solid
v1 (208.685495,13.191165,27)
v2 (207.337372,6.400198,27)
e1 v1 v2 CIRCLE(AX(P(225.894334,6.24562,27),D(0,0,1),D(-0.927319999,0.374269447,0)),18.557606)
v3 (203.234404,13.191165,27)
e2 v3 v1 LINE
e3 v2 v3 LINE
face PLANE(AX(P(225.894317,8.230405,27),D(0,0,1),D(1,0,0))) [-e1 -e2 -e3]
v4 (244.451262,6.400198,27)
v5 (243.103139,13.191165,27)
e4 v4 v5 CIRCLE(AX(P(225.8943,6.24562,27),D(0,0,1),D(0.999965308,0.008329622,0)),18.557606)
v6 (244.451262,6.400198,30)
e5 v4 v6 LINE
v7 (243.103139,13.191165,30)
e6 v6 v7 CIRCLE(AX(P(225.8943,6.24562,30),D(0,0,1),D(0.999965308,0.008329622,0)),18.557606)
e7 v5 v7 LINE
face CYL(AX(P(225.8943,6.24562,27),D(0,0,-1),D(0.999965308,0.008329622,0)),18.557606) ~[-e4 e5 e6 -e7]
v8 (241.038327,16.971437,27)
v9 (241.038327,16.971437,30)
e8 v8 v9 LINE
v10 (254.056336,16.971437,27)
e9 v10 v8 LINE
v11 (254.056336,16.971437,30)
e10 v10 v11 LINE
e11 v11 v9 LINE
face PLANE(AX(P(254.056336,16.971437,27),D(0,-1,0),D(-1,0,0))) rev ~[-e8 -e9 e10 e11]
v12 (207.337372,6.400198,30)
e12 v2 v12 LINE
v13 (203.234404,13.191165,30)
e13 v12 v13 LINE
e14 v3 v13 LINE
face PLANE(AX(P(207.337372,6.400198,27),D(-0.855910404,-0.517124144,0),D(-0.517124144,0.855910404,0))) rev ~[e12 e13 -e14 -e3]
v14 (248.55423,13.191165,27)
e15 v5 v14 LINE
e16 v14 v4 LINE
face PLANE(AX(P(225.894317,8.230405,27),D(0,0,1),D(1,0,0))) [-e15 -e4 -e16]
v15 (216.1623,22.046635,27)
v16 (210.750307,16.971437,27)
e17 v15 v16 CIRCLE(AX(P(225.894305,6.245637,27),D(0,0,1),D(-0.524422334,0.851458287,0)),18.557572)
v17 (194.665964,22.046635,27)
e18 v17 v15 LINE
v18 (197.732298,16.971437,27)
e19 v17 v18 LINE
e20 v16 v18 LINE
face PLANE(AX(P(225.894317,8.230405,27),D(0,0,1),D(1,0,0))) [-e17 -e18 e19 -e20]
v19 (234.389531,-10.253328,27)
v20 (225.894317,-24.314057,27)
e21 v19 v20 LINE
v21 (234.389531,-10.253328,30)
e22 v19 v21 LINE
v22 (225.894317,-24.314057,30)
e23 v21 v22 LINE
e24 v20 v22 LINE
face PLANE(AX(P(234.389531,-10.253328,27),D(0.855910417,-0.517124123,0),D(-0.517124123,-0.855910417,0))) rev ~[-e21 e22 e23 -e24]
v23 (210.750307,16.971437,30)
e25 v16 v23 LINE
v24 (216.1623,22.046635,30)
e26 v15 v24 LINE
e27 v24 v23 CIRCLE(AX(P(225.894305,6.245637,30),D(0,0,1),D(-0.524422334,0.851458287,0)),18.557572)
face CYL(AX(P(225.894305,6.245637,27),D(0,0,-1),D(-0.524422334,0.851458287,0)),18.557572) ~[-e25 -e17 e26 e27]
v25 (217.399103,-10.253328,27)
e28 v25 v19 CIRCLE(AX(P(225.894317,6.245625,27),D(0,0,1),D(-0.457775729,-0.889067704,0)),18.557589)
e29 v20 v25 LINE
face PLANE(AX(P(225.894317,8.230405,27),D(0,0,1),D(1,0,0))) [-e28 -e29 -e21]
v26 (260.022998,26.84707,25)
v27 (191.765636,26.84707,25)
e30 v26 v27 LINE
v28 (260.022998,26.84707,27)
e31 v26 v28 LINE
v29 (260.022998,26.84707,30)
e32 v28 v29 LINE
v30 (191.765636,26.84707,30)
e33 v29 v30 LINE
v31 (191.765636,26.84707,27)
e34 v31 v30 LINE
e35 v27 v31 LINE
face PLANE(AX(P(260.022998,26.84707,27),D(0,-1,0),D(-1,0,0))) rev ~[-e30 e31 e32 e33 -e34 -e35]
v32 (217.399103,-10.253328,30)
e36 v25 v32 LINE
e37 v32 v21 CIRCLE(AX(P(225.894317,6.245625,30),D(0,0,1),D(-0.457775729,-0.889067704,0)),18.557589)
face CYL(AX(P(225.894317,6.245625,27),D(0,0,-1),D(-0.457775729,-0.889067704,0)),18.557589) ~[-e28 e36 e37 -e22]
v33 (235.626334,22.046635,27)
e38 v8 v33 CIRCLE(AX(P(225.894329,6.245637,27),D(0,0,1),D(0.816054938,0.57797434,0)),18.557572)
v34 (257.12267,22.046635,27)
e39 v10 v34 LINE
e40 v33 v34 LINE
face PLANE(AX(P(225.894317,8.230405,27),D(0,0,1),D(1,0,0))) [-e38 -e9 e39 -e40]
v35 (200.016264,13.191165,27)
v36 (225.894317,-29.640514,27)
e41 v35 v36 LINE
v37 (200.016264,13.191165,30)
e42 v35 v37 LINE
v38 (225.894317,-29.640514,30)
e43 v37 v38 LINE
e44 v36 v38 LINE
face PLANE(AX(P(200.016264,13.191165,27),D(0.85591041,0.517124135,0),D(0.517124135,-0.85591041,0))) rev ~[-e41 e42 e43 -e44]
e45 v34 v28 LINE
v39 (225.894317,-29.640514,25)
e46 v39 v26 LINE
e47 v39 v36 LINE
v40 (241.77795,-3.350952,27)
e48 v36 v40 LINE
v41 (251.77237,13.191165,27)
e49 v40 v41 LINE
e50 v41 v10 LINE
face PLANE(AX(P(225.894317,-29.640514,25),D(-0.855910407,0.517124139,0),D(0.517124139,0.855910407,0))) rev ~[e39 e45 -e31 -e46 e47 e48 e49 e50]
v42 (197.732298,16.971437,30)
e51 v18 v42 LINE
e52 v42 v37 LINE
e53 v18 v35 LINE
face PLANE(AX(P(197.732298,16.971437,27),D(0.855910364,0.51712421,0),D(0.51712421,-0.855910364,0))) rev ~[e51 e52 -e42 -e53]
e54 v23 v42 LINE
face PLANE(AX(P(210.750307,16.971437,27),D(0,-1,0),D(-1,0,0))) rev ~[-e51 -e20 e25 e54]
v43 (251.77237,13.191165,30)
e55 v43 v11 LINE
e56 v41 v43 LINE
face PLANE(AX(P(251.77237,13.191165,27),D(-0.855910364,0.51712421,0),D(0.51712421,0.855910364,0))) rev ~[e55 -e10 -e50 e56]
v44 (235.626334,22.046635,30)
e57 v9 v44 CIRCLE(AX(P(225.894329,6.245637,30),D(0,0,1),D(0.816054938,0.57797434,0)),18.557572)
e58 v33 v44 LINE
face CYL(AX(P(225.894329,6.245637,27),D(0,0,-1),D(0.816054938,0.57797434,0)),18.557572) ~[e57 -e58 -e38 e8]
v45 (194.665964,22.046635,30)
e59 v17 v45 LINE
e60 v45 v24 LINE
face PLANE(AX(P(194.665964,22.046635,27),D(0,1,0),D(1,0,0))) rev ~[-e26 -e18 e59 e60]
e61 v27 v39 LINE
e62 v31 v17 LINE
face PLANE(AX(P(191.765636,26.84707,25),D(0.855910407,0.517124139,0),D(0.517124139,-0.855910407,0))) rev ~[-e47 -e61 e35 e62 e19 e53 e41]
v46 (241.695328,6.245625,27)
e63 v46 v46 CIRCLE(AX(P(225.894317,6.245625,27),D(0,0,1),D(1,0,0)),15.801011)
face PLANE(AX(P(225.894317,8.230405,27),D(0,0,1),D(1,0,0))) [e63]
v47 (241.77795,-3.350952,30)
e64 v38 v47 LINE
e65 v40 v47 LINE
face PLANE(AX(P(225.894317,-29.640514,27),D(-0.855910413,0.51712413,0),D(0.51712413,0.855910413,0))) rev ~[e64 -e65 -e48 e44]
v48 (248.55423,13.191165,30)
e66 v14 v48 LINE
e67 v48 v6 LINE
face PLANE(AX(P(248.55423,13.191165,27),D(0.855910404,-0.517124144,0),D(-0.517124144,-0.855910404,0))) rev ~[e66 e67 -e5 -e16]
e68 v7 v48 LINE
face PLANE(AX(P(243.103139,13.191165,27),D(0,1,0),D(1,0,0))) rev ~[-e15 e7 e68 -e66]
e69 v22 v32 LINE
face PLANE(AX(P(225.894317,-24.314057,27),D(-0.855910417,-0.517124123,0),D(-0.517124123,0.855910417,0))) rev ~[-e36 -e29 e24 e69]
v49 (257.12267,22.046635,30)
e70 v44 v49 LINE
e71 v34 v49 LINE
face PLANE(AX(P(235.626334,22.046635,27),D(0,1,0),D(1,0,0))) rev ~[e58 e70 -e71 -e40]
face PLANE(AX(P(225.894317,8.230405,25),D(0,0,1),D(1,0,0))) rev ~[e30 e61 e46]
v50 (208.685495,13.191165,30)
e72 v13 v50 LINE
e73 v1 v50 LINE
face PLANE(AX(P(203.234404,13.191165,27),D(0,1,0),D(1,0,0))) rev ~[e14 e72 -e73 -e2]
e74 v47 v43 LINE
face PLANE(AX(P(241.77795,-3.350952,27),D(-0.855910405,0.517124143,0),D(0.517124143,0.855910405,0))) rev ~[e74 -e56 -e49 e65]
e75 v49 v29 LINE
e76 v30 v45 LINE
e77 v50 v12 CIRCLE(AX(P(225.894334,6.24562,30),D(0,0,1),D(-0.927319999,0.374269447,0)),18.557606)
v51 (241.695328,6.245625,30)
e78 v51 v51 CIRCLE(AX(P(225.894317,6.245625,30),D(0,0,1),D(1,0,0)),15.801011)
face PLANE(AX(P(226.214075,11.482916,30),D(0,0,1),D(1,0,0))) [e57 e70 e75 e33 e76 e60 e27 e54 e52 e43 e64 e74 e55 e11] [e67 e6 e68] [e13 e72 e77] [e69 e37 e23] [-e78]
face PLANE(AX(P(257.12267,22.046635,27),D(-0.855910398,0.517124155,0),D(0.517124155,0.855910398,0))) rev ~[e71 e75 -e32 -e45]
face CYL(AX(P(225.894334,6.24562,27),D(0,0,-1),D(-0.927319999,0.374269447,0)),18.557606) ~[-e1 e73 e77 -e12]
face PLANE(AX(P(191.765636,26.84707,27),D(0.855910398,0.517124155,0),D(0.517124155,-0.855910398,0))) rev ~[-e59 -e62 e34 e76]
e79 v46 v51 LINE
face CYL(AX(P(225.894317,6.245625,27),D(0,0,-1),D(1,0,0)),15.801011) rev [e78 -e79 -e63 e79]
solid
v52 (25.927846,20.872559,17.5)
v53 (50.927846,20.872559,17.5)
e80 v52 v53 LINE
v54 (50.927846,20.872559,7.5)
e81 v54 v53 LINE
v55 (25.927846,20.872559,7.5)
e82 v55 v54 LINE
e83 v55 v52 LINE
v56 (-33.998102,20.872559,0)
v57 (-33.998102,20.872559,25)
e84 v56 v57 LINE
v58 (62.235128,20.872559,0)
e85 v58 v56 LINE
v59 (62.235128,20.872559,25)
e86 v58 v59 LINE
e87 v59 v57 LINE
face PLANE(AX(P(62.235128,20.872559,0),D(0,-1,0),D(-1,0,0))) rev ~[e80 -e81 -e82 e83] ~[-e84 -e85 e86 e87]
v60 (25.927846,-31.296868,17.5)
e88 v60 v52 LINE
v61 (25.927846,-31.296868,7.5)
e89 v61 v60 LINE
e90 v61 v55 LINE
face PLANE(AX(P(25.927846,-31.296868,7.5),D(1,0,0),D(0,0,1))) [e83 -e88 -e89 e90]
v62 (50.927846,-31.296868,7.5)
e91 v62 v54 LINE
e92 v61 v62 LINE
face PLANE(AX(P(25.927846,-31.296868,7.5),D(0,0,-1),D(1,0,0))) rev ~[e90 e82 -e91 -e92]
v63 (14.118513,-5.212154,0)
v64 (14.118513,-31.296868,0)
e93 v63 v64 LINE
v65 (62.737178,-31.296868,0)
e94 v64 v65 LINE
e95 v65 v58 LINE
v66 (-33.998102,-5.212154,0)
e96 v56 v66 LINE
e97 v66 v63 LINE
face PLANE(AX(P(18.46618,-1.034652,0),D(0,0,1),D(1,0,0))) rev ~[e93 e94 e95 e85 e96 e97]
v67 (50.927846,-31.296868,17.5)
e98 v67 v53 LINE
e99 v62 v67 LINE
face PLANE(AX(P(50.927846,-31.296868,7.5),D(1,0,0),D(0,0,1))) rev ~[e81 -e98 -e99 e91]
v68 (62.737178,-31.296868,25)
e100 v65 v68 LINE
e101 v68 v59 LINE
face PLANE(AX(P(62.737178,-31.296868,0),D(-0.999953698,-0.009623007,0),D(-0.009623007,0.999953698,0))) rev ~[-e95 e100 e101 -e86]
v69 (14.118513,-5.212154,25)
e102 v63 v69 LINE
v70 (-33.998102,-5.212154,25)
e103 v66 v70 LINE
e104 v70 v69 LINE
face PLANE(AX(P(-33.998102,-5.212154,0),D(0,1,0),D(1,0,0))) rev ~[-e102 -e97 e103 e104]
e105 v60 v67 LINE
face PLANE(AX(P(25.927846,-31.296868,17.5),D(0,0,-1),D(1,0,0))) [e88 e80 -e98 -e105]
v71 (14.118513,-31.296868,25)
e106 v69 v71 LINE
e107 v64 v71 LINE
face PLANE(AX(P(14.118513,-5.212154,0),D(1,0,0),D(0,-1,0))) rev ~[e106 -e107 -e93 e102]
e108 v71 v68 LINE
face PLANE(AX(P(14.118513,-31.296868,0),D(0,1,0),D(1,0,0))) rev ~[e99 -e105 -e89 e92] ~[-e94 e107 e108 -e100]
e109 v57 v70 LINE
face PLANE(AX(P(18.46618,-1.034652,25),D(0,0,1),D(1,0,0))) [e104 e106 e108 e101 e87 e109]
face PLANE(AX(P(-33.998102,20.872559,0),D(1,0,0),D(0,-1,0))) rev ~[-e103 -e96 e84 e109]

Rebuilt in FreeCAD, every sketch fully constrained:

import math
import FreeCAD as App
import Part
import Sketcher
from FreeCAD import Vector
Q = App.Units.Quantity


def add_polygon(sketch, points):
    """Adds a closed chain of lines whose ends are joined by coincident constraints."""
    first, n = sketch.GeometryCount, len(points)
    for a, b in zip(points, points[1:] + points[:1]):
        sketch.addGeometry(Part.LineSegment(App.Vector(*a, 0), App.Vector(*b, 0)), False)
    for i in range(n):
        sketch.addConstraint(Sketcher.Constraint("Coincident", first + i, 2, first + (i + 1) % n, 1))

doc = App.newDocument("Part")
params = doc.addObject("Spreadsheet::Sheet", "Params")
for row, (alias, value) in enumerate([
    ("pad1_length", "25 mm"),
    ("sketch2_width", "25 mm"),
    ("sketch2_height", "10 mm"),
    ("pad2_length", "2 mm"),
    ("pad3_length", "3 mm"),
], start=1):
    params.set(f"A{row}", alias)
    params.set(f"B{row}", "=" + value)
    params.setAlias(f"B{row}", alias)

body = doc.addObject("PartDesign::Body", "Body")

# Sketch on XY plane
sketch1 = body.newObject("Sketcher::SketchObject", "Sketch")
sketch1.AttachmentSupport = (doc.getObject("XY_Plane"), [""])
sketch1.MapMode = "FlatFace"
add_polygon(sketch1, [(62, 21), (-34, 21), (-34, -5), (14, -5), (14, -31), (63, -31)])  # lines 0-5
sketch1.addConstraint([
    Sketcher.Constraint("Horizontal", 0),
    Sketcher.Constraint("Vertical", 1),
    Sketcher.Constraint("Horizontal", 2),
    Sketcher.Constraint("Vertical", 3),
    Sketcher.Constraint("Horizontal", 4),
    Sketcher.Constraint("Equal", 1, 3),
    Sketcher.Constraint("DistanceX", 0, 2, 0, 1, Q("96.23323 mm")),
    Sketcher.Constraint("DistanceX", 2, 1, 2, 2, Q("48.116615 mm")),
    Sketcher.Constraint("DistanceX", 4, 1, 4, 2, Q("48.618665 mm")),
    Sketcher.Constraint("DistanceY", 1, 2, 1, 1, Q("26.084713 mm")),
    Sketcher.Constraint("DistanceY", -1, 1, 0, 2, Q("20.872559 mm")),
    Sketcher.Constraint("DistanceX", -1, 1, 5, 2, Q("62.235128 mm")),
])
pad1 = body.newObject("PartDesign::Pad", "Pad")
pad1.Profile = sketch1
pad1.setExpression("Length", "Params.pad1_length")

# Sketch on XZ plane
sketch2 = body.newObject("Sketcher::SketchObject", "Sketch001")
sketch2.AttachmentSupport = (doc.getObject("XZ_Plane"), [""])
sketch2.MapMode = "FlatFace"
sketch2.AttachmentOffset = App.Placement(Vector(0, 0, 31.296868), App.Rotation())
add_polygon(sketch2, [(26, 18), (26, 8), (51, 8), (51, 18)])  # lines 0-3
sketch2.addConstraint([
    Sketcher.Constraint("Vertical", 0),
    Sketcher.Constraint("Horizontal", 1),
    Sketcher.Constraint("Vertical", 2),
    Sketcher.Constraint("Horizontal", 3),
    Sketcher.Constraint("DistanceX", 1, 1, 1, 2, Q("25 mm")),
    Sketcher.Constraint("DistanceY", 0, 2, 0, 1, Q("10 mm")),
    Sketcher.Constraint("DistanceY", -1, 1, 0, 2, Q("7.5 mm")),
    Sketcher.Constraint("DistanceX", -1, 1, 0, 2, Q("25.927846 mm")),
])
sketch2.setExpression("Constraints[8]", "Params.sketch2_width")
sketch2.setExpression("Constraints[9]", "Params.sketch2_height")
pocket1 = body.newObject("PartDesign::Pocket", "Pocket")
pocket1.Profile = sketch2
pocket1.Type = "ThroughAll"
body2 = doc.addObject("PartDesign::Body", "Body001")

# Sketch on XY plane
sketch3 = body2.newObject("Sketcher::SketchObject", "Sketch002")
sketch3.AttachmentSupport = (doc.getObject("XY_Plane001"), [""])
sketch3.MapMode = "FlatFace"
sketch3.AttachmentOffset = App.Placement(Vector(0, 0, 25), App.Rotation())
add_polygon(sketch3, [(192, 27), (226, -30), (260, 27)])  # lines 0-2
sketch3.addConstraint([
    Sketcher.Constraint("Horizontal", 2),
    Sketcher.Constraint("Equal", 0, 1),
    Sketcher.Constraint("DistanceX", 2, 2, 2, 1, Q("68.257362 mm")),
    Sketcher.Constraint("DistanceY", -1, 1, 1, 2, Q("26.84707 mm")),
    Sketcher.Constraint("Distance", 0, Q("65.997076 mm")),
    Sketcher.Constraint("DistanceX", -1, 1, 0, 2, Q("225.894317 mm")),
])
pad2 = body2.newObject("PartDesign::Pad", "Pad001")
pad2.Profile = sketch3
pad2.setExpression("Length", "Params.pad2_length")

# Sketch on XY plane
sketch4 = body2.newObject("Sketcher::SketchObject", "Sketch003")
sketch4.AttachmentSupport = (doc.getObject("XY_Plane001"), [""])
sketch4.MapMode = "FlatFace"
sketch4.AttachmentOffset = App.Placement(Vector(0, 0, 27), App.Rotation())
sketch4.addGeometry([
    Part.LineSegment(Vector(260, 26.8, 0), Vector(191.8, 26.8, 0)),  # 0
    Part.LineSegment(Vector(191.8, 26.8, 0), Vector(194.7, 22, 0)),  # 1
    Part.LineSegment(Vector(194.7, 22, 0), Vector(216.2, 22, 0)),  # 2
    Part.ArcOfCircle(Part.Circle(Vector(225.9, 6.2, 0), Vector(0, 0, 1), 18.6), math.radians(122), math.radians(145)),  # 3
    Part.LineSegment(Vector(210.8, 17, 0), Vector(197.7, 17, 0)),  # 4
    Part.LineSegment(Vector(197.7, 17, 0), Vector(200, 13.2, 0)),  # 5
    Part.LineSegment(Vector(200, 13.2, 0), Vector(225.9, -29.6, 0)),  # 6
    Part.LineSegment(Vector(225.9, -29.6, 0), Vector(241.8, -3.4, 0)),  # 7
    Part.LineSegment(Vector(241.8, -3.4, 0), Vector(251.8, 13.2, 0)),  # 8
    Part.LineSegment(Vector(251.8, 13.2, 0), Vector(254.1, 17, 0)),  # 9
    Part.LineSegment(Vector(254.1, 17, 0), Vector(241, 17, 0)),  # 10
    Part.ArcOfCircle(Part.Circle(Vector(225.9, 6.2, 0), Vector(0, 0, 1), 18.6), math.radians(35), math.radians(58)),  # 11
    Part.LineSegment(Vector(235.6, 22, 0), Vector(257.1, 22, 0)),  # 12
    Part.LineSegment(Vector(257.1, 22, 0), Vector(260, 26.8, 0)),  # 13
    Part.LineSegment(Vector(243.1, 13.2, 0), Vector(248.6, 13.2, 0)),  # 14
    Part.LineSegment(Vector(248.6, 13.2, 0), Vector(244.5, 6.4, 0)),  # 15
    Part.ArcOfCircle(Part.Circle(Vector(225.9, 6.2, 0), Vector(0, 0, 1), 18.6), math.radians(0), math.radians(22)),  # 16
    Part.LineSegment(Vector(225.9, -24.3, 0), Vector(217.4, -10.3, 0)),  # 17
    Part.ArcOfCircle(Part.Circle(Vector(225.9, 6.2, 0), Vector(0, 0, 1), 18.6), math.radians(-117), math.radians(-63)),  # 18
    Part.LineSegment(Vector(234.4, -10.3, 0), Vector(225.9, -24.3, 0)),  # 19
    Part.ArcOfCircle(Part.Circle(Vector(225.9, 6.2, 0), Vector(0, 0, 1), 18.6), math.radians(158), math.radians(180)),  # 20
    Part.LineSegment(Vector(207.3, 6.4, 0), Vector(203.2, 13.2, 0)),  # 21
    Part.LineSegment(Vector(203.2, 13.2, 0), Vector(208.7, 13.2, 0)),  # 22
    Part.Circle(Vector(225.9, 6.2, 0), Vector(0, 0, 1), 15.8),  # 23
], False)
sketch4.addConstraint([
    Sketcher.Constraint("Coincident", 0, 2, 1, 1),
    Sketcher.Constraint("Coincident", 1, 2, 2, 1),
    Sketcher.Constraint("Coincident", 2, 2, 3, 1),
    Sketcher.Constraint("Coincident", 3, 2, 4, 1),
    Sketcher.Constraint("Coincident", 4, 2, 5, 1),
    Sketcher.Constraint("Coincident", 5, 2, 6, 1),
    Sketcher.Constraint("Coincident", 6, 2, 7, 1),
    Sketcher.Constraint("Coincident", 7, 2, 8, 1),
    Sketcher.Constraint("Coincident", 8, 2, 9, 1),
    Sketcher.Constraint("Coincident", 9, 2, 10, 1),
    Sketcher.Constraint("Coincident", 10, 2, 11, 1),
    Sketcher.Constraint("Coincident", 11, 2, 12, 1),
    Sketcher.Constraint("Coincident", 12, 2, 13, 1),
    Sketcher.Constraint("Coincident", 13, 2, 0, 1),
    Sketcher.Constraint("Coincident", 14, 2, 15, 1),
    Sketcher.Constraint("Coincident", 15, 2, 16, 1),
    Sketcher.Constraint("Coincident", 16, 2, 14, 1),
    Sketcher.Constraint("Coincident", 17, 2, 18, 1),
    Sketcher.Constraint("Coincident", 18, 2, 19, 1),
    Sketcher.Constraint("Coincident", 19, 2, 17, 1),
    Sketcher.Constraint("Coincident", 20, 2, 21, 1),
    Sketcher.Constraint("Coincident", 21, 2, 22, 1),
    Sketcher.Constraint("Coincident", 22, 2, 20, 1),
    Sketcher.Constraint("Horizontal", 0),
    Sketcher.Constraint("Horizontal", 2),
    Sketcher.Constraint("Horizontal", 4),
    Sketcher.Constraint("Horizontal", 10),
    Sketcher.Constraint("Horizontal", 12),
    Sketcher.Constraint("Horizontal", 14),
    Sketcher.Constraint("Horizontal", 22),
    Sketcher.Constraint("Coincident", 23, 3, 18, 3),
    Sketcher.Constraint("Equal", 3, 11),
    Sketcher.Constraint("Equal", 16, 20),
    Sketcher.Constraint("Parallel", 1, 5),
    Sketcher.Constraint("Parallel", 5, 6),
    Sketcher.Constraint("Parallel", 7, 8),
    Sketcher.Constraint("Parallel", 8, 9),
    Sketcher.Constraint("Parallel", 9, 13),
    Sketcher.Constraint("Parallel", 13, 15),
    Sketcher.Constraint("Parallel", 6, 17),
    Sketcher.Constraint("Parallel", 15, 19),
    Sketcher.Constraint("Parallel", 17, 21),
    Sketcher.Constraint("Horizontal", 3, 3, 11, 3),
    Sketcher.Constraint("Horizontal", 16, 3, 20, 3),
    Sketcher.Constraint("Horizontal", 5, 2, 8, 2),
    Sketcher.Constraint("Horizontal", 4, 2, 9, 2),
    Sketcher.Constraint("Horizontal", 2, 2, 11, 2),
    Sketcher.Constraint("Horizontal", 8, 2, 14, 2),
    Sketcher.Constraint("Horizontal", 17, 2, 18, 2),
    Sketcher.Constraint("Horizontal", 15, 2, 20, 2),
    Sketcher.Constraint("Horizontal", 16, 2, 21, 2),
    Sketcher.Constraint("Vertical", 23, 3, 6, 2),
    Sketcher.Constraint("Vertical", 6, 2, 19, 2),
    Sketcher.Constraint("Equal", 4, 10),
    Sketcher.Constraint("Equal", 2, 12),
    Sketcher.Constraint("Radius", 3, Q("18.557572 mm")),
    Sketcher.Constraint("Radius", 18, Q("18.557589 mm")),
    Sketcher.Constraint("Diameter", 23, Q("31.602022 mm")),
    Sketcher.Constraint("Radius", 16, Q("18.557606 mm")),
    Sketcher.Constraint("DistanceY", 3, 3, 1, 2, Q("15.800998 mm")),
    Sketcher.Constraint("DistanceX", 2, 2, 16, 3, Q("9.732 mm")),
    Sketcher.Constraint("DistanceX", 3, 2, 3, 3, Q("15.143998 mm")),
    Sketcher.Constraint("DistanceX", 20, 3, 11, 2, Q("9.732 mm")),
    Sketcher.Constraint("DistanceX", 0, 2, 0, 1, Q("68.257362 mm")),
    Sketcher.Constraint("DistanceX", 4, 2, 4, 1, Q("13.018009 mm")),
    Sketcher.Constraint("DistanceX", 14, 1, 14, 2, Q("5.451091 mm")),
    Sketcher.Constraint("DistanceX", -1, 1, 16, 3, Q("225.8943 mm")),
    Sketcher.Constraint("DistanceX", 1, 2, 5, 2, Q("5.3503 mm")),
    Sketcher.Constraint("Distance", 1, Q("5.608572 mm")),
    Sketcher.Constraint("Distance", 5, Q("4.416668 mm")),
    Sketcher.Constraint("Distance", 7, Q("30.71532 mm")),
    Sketcher.Constraint("DistanceX", 2, 1, 2, 2, Q("21.496336 mm")),
    Sketcher.Constraint("DistanceY", -1, 1, 16, 3, Q("6.24562 mm")),
    Sketcher.Constraint("DistanceY", -1, 1, 0, 2, Q("26.84707 mm")),
    Sketcher.Constraint("DistanceX", -1, 1, 18, 2, Q("234.389531 mm")),
    Sketcher.Constraint("DistanceY", 18, 2, -1, 1, Q("10.253328 mm")),
])
pad3 = body2.newObject("PartDesign::Pad", "Pad002")
pad3.Profile = sketch4
pad3.setExpression("Length", "Params.pad3_length")

doc.recompute()
